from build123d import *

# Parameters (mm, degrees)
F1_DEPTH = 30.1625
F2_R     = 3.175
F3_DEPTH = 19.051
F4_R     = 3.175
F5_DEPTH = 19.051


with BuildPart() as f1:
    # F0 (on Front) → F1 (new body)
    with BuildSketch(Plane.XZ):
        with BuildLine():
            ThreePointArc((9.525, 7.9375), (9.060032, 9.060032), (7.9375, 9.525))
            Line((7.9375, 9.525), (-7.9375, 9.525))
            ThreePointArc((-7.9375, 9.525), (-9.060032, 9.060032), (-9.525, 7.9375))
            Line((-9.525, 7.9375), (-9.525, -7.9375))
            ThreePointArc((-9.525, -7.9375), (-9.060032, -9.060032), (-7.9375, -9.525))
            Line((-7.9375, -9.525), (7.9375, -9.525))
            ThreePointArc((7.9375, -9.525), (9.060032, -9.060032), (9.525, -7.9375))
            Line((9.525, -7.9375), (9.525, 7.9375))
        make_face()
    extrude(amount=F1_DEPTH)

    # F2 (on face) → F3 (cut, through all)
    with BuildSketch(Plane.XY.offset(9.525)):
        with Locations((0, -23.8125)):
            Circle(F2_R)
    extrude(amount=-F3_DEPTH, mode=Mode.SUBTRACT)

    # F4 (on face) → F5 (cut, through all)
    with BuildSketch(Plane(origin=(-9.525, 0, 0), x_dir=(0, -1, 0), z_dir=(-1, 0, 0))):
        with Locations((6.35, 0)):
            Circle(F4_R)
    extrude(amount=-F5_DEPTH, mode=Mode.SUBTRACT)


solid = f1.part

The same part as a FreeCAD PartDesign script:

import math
import FreeCAD as App
import Part
import Sketcher

V = App.Vector
Q = App.Units.Quantity

doc = App.newDocument("Part")
body = doc.addObject("PartDesign::Body", "Body")

# Sketch on XZ plane
sketch1 = body.newObject("Sketcher::SketchObject", "Sketch")
sketch1.AttachmentSupport = (doc.getObject("XZ_Plane"), [""])
sketch1.MapMode = "FlatFace"
sketch1.addGeometry([
    Part.ArcOfCircle(Part.Circle(V(7.9, 7.9, 0), V(0, 0, 1), 1.6), math.radians(0), math.radians(90)),  # 0
    Part.LineSegment(V(7.9, 9.5, 0), V(-7.9, 9.5, 0)),  # 1
    Part.ArcOfCircle(Part.Circle(V(-7.9, 7.9, 0), V(0, 0, 1), 1.6), math.radians(90), math.radians(180)),  # 2
    Part.LineSegment(V(-9.5, 7.9, 0), V(-9.5, -7.9, 0)),  # 3
    Part.ArcOfCircle(Part.Circle(V(-7.9, -7.9, 0), V(0, 0, 1), 1.6), math.radians(-180), math.radians(-90)),  # 4
    Part.LineSegment(V(-7.9, -9.5, 0), V(7.9, -9.5, 0)),  # 5
    Part.ArcOfCircle(Part.Circle(V(7.9, -7.9, 0), V(0, 0, 1), 1.6), math.radians(-90), math.radians(0)),  # 6
    Part.LineSegment(V(9.5, -7.9, 0), V(9.5, 7.9, 0)),  # 7
], False)
sketch1.addConstraint([
    Sketcher.Constraint("Tangent", 0, 2, 1, 1),
    Sketcher.Constraint("Tangent", 1, 2, 2, 1),
    Sketcher.Constraint("Tangent", 2, 2, 3, 1),
    Sketcher.Constraint("Tangent", 3, 2, 4, 1),
    Sketcher.Constraint("Tangent", 4, 2, 5, 1),
    Sketcher.Constraint("Tangent", 5, 2, 6, 1),
    Sketcher.Constraint("Tangent", 6, 2, 7, 1),
    Sketcher.Constraint("Tangent", 7, 2, 0, 1),
    Sketcher.Constraint("Horizontal", 1),
    Sketcher.Constraint("Vertical", 3),
    Sketcher.Constraint("Horizontal", 5),
    Sketcher.Constraint("Vertical", 7),
    Sketcher.Constraint("Equal", 0, 2),
    Sketcher.Constraint("Equal", 2, 4),
    Sketcher.Constraint("Equal", 4, 6),
    Sketcher.Constraint("Symmetric", 0, 3, 4, 3, -1, 1),
    Sketcher.Constraint("Equal", 5, 3),
    Sketcher.Constraint("Radius", 0, Q("0.0625 in")),
    Sketcher.Constraint("DistanceX", 1, 2, 1, 1, Q("0.625 in")),
])
pad1 = body.newObject("PartDesign::Pad", "Pad")
pad1.Profile = sketch1
pad1.Length = Q("1.1875 in")

# Sketch on XY plane
sketch2 = body.newObject("Sketcher::SketchObject", "Sketch001")
sketch2.AttachmentSupport = (doc.getObject("XY_Plane"), [""])
sketch2.MapMode = "FlatFace"
sketch2.AttachmentOffset = App.Placement(V(0, 0, 0.375 * 25.4), App.Rotation())
sketch2.addGeometry(Part.Circle(V(0, -23.8, 0), V(0, 0, 1), 3.2), False)
sketch2.addConstraint([
    Sketcher.Constraint("PointOnObject", 0, 3, -2),
    Sketcher.Constraint("Diameter", 0, Q("0.25 in")),
    Sketcher.Constraint("DistanceY", 0, 3, -1, 1, Q("0.9375 in")),
])
pocket1 = body.newObject("PartDesign::Pocket", "Pocket")
pocket1.Profile = sketch2
pocket1.Type = "ThroughAll"

# Sketch on YZ plane
sketch3 = body.newObject("Sketcher::SketchObject", "Sketch002")
sketch3.AttachmentSupport = (doc.getObject("YZ_Plane"), [""])
sketch3.MapMode = "FlatFace"
sketch3.AttachmentOffset = App.Placement(V(0, 0, -0.375 * 25.4), App.Rotation())
sketch3.addGeometry(Part.Circle(V(-6.3, 0, 0), V(0, 0, 1), 3.2), False)
sketch3.addConstraint([
    Sketcher.Constraint("PointOnObject", 0, 3, -1),
    Sketcher.Constraint("Diameter", 0, Q("0.25 in")),
    Sketcher.Constraint("DistanceX", 0, 3, -1, 1, Q("0.25 in")),
])
pocket2 = body.newObject("PartDesign::Pocket", "Pocket001")
pocket2.Profile = sketch3
pocket2.Type = "ThroughAll"
pocket2.Reversed = True

doc.recompute()
